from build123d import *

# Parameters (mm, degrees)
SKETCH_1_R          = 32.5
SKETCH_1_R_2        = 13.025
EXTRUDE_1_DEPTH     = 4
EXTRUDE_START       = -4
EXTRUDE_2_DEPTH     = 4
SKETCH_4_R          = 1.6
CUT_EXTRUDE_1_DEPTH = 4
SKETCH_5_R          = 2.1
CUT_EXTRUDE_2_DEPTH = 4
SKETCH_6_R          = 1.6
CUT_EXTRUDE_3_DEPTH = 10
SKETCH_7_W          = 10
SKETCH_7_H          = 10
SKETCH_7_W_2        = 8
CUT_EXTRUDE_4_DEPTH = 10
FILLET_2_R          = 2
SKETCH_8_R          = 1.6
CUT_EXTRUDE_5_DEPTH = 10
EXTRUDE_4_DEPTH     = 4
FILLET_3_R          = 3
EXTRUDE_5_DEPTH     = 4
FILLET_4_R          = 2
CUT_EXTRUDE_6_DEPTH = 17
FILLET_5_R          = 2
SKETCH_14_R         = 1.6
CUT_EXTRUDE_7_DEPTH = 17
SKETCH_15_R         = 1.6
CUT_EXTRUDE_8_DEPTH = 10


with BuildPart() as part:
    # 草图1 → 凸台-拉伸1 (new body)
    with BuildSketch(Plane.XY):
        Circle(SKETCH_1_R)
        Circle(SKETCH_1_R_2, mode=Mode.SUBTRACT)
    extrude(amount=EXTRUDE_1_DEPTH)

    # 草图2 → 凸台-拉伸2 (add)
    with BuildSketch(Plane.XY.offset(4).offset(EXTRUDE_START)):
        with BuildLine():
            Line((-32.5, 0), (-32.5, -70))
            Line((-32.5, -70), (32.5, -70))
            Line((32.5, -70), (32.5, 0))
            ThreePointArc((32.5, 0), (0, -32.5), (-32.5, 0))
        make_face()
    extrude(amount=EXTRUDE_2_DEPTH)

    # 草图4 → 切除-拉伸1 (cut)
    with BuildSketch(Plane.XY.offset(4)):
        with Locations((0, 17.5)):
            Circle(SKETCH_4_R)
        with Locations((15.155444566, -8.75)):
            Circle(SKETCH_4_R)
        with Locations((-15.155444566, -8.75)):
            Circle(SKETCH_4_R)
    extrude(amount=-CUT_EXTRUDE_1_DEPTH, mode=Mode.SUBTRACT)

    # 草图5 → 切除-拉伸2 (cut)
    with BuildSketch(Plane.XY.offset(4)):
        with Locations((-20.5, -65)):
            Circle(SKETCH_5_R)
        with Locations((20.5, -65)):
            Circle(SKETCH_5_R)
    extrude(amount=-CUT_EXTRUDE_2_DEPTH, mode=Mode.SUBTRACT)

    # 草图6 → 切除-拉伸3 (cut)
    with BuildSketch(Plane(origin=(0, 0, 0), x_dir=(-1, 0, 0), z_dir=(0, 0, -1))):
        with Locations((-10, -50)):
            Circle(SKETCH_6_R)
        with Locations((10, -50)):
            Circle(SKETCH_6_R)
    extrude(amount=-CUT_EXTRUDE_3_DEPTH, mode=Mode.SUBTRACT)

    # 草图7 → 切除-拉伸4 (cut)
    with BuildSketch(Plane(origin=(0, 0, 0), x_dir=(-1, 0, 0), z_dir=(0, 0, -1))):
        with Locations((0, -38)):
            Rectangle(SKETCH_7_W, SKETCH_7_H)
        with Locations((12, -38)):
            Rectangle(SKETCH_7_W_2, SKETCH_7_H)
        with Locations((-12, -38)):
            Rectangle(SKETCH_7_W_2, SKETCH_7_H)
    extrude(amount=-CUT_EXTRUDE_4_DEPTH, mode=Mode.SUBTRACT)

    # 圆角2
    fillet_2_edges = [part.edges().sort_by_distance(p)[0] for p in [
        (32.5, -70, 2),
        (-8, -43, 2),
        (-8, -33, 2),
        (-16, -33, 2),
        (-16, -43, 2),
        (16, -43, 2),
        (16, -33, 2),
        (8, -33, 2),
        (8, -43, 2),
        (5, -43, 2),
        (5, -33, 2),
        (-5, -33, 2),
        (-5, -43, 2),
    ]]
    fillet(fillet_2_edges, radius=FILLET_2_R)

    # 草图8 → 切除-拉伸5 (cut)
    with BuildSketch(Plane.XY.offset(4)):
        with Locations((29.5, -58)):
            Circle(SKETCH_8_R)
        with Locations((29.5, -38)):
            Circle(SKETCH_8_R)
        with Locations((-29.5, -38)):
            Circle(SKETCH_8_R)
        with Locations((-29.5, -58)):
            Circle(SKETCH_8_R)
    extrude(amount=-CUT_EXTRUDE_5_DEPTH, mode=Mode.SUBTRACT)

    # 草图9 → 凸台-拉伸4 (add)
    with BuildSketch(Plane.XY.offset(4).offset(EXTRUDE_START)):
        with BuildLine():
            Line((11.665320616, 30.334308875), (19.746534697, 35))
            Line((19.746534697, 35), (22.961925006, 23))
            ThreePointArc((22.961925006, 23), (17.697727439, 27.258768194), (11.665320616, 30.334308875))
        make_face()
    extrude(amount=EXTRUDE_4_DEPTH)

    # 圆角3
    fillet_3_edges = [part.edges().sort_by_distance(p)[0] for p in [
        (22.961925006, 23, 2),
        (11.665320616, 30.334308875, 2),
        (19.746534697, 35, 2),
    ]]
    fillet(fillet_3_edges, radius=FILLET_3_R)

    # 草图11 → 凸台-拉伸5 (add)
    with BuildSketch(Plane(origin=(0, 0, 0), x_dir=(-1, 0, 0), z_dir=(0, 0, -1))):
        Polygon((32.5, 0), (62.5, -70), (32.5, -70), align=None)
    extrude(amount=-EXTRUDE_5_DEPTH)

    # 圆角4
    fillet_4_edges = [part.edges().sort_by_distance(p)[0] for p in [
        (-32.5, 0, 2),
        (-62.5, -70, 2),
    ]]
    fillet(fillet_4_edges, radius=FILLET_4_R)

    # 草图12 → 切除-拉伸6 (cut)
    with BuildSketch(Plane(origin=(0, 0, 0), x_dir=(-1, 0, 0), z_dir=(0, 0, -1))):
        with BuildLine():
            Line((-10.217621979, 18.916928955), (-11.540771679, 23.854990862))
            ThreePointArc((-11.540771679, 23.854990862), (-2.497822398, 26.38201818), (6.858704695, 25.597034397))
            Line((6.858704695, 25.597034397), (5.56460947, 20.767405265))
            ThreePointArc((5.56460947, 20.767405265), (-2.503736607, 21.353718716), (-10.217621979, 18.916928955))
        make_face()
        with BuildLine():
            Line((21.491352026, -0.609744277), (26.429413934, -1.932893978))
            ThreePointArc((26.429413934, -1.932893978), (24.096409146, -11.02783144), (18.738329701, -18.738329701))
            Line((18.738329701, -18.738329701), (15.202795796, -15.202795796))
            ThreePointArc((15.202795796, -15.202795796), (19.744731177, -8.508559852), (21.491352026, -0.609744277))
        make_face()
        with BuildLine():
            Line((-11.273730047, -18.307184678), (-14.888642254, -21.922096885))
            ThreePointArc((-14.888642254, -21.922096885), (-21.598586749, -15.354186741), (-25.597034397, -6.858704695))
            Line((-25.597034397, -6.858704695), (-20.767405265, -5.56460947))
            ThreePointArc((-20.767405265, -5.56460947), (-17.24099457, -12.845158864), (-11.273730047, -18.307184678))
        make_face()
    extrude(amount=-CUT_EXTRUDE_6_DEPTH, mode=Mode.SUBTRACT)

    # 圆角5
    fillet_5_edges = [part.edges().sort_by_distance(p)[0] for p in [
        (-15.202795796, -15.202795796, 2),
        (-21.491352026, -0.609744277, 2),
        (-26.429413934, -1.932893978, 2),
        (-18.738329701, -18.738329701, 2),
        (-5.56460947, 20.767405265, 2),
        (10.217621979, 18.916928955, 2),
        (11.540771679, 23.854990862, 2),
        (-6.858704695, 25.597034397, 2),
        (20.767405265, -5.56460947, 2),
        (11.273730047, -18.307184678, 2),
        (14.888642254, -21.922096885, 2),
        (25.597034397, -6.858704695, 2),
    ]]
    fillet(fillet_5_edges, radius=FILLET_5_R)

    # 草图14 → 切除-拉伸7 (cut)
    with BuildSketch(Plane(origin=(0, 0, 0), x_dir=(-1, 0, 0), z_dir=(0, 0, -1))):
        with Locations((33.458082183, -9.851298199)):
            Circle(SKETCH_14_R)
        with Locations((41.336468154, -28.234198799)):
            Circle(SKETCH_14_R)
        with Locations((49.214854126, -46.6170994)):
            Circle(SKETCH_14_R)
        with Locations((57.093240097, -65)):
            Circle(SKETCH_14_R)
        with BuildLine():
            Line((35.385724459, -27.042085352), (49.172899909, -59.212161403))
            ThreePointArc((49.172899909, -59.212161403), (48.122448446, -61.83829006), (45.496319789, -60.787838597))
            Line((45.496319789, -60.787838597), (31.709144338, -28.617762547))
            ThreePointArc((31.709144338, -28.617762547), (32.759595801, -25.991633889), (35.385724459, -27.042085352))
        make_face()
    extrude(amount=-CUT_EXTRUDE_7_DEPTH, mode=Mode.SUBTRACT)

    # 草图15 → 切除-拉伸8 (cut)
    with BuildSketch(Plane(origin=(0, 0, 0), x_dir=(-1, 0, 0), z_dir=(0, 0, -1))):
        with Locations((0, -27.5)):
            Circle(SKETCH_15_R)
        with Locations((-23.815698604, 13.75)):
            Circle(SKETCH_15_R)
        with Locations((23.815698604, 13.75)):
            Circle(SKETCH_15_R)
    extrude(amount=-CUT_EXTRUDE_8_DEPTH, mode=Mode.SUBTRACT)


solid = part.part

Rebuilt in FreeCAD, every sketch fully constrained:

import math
import FreeCAD as App
import Part
import Sketcher
Q = App.Units.Quantity


def edges_at(feature, points):
    """Names of the edges that pass closest to the given points."""
    edges = feature.Shape.Edges
    near = lambda p: min(range(len(edges)), key=lambda i: edges[i].distToShape(Part.Vertex(*p))[0])
    return sorted({f"Edge{near(p) + 1}" for p in points})


def add_polygon(sketch, points):
    """Adds a closed chain of lines whose ends are joined by coincident constraints."""
    first, n = sketch.GeometryCount, len(points)
    for a, b in zip(points, points[1:] + points[:1]):
        sketch.addGeometry(Part.LineSegment(App.Vector(*a, 0), App.Vector(*b, 0)), False)
    for i in range(n):
        sketch.addConstraint(Sketcher.Constraint("Coincident", first + i, 2, first + (i + 1) % n, 1))

doc = App.newDocument("Part")
body = doc.addObject("PartDesign::Body", "Body")

# Sketch on XY plane
sketch1 = body.newObject("Sketcher::SketchObject", "Sketch")
sketch1.AttachmentSupport = (doc.getObject("XY_Plane"), [""])
sketch1.MapMode = "FlatFace"
sketch1.addGeometry([
    Part.Circle(App.Vector(0, 0, 0), App.Vector(0, 0, 1), 32),
    Part.Circle(App.Vector(0, 0, 0), App.Vector(0, 0, 1), 13),
], False)
sketch1.addConstraint([
    Sketcher.Constraint("Coincident", 0, 3, -1, 1),
    Sketcher.Constraint("Coincident", 1, 3, -1, 1),
    Sketcher.Constraint("Diameter", 0, Q("65 mm")),
    Sketcher.Constraint("Diameter", 1, Q("26.05 mm")),
])
pad1 = body.newObject("PartDesign::Pad", "Pad")
pad1.Profile = sketch1
pad1.Length = 4

# Sketch on XY plane
sketch2 = body.newObject("Sketcher::SketchObject", "Sketch001")
sketch2.AttachmentSupport = (doc.getObject("XY_Plane"), [""])
sketch2.MapMode = "FlatFace"
sketch2.addGeometry([
    Part.LineSegment(App.Vector(-32, 0, 0), App.Vector(-32, -70, 0)),
    Part.LineSegment(App.Vector(-32, -70, 0), App.Vector(32, -70, 0)),
    Part.LineSegment(App.Vector(32, -70, 0), App.Vector(32, 0, 0)),
    Part.ArcOfCircle(Part.Circle(App.Vector(0, 0, 0), App.Vector(0, 0, 1), 32), math.radians(180), math.radians(360)),
], False)
sketch2.addConstraint([
    Sketcher.Constraint("Coincident", 0, 2, 1, 1),
    Sketcher.Constraint("Coincident", 1, 2, 2, 1),
    Sketcher.Constraint("Tangent", 2, 2, 3, 2),
    Sketcher.Constraint("Tangent", 3, 1, 0, 1),
    Sketcher.Constraint("Vertical", 0),
    Sketcher.Constraint("Horizontal", 1),
    Sketcher.Constraint("Vertical", 2),
    Sketcher.Constraint("Coincident", 3, 3, -1, 1),
    Sketcher.Constraint("Radius", 3, Q("32.5 mm")),
    Sketcher.Constraint("DistanceY", 0, 2, 0, 1, Q("70 mm")),
])
pad2 = body.newObject("PartDesign::Pad", "Pad001")
pad2.Profile = sketch2
pad2.Length = 4

# Sketch on XY plane
sketch3 = body.newObject("Sketcher::SketchObject", "Sketch002")
sketch3.AttachmentSupport = (doc.getObject("XY_Plane"), [""])
sketch3.MapMode = "FlatFace"
sketch3.AttachmentOffset = App.Placement(App.Vector(0, 0, 4), App.Rotation())
sketch3.addGeometry([
    Part.Circle(App.Vector(0, 17.5, 0), App.Vector(0, 0, 1), 1.6),
    Part.Circle(App.Vector(15.2, -8.8, 0), App.Vector(0, 0, 1), 1.6),
    Part.Circle(App.Vector(-15.2, -8.8, 0), App.Vector(0, 0, 1), 1.6),
], False)
sketch3.addConstraint([
    Sketcher.Constraint("Equal", 0, 1),
    Sketcher.Constraint("Equal", 1, 2),
    Sketcher.Constraint("Symmetric", 1, 3, 2, 3, -2),
    Sketcher.Constraint("PointOnObject", 0, 3, -2),
    Sketcher.Constraint("Diameter", 0, Q("3.2 mm")),
    Sketcher.Constraint("DistanceY", -1, 1, 0, 3, Q("17.5 mm")),
    Sketcher.Constraint("DistanceY", 1, 3, -1, 1, Q("8.75 mm")),
    Sketcher.Constraint("DistanceX", 2, 3, 1, 3, Q("30.310889 mm")),
])
pocket1 = body.newObject("PartDesign::Pocket", "Pocket")
pocket1.Profile = sketch3
pocket1.Length = 4

# Sketch on XY plane
sketch4 = body.newObject("Sketcher::SketchObject", "Sketch003")
sketch4.AttachmentSupport = (doc.getObject("XY_Plane"), [""])
sketch4.MapMode = "FlatFace"
sketch4.AttachmentOffset = App.Placement(App.Vector(0, 0, 4), App.Rotation())
sketch4.addGeometry([
    Part.Circle(App.Vector(-20.5, -65, 0), App.Vector(0, 0, 1), 2.1),
    Part.Circle(App.Vector(20.5, -65, 0), App.Vector(0, 0, 1), 2.1),
], False)
sketch4.addConstraint([
    Sketcher.Constraint("Equal", 0, 1),
    Sketcher.Constraint("Symmetric", 0, 3, 1, 3, -2),
    Sketcher.Constraint("Diameter", 0, Q("4.2 mm")),
    Sketcher.Constraint("DistanceY", 0, 3, -1, 1, Q("65 mm")),
    Sketcher.Constraint("DistanceX", 0, 3, 1, 3, Q("41 mm")),
])
pocket2 = body.newObject("PartDesign::Pocket", "Pocket001")
pocket2.Profile = sketch4
pocket2.Length = 4

# Sketch on XY plane
sketch5 = body.newObject("Sketcher::SketchObject", "Sketch004")
sketch5.AttachmentSupport = (doc.getObject("XY_Plane"), [""])
sketch5.MapMode = "FlatFace"
sketch5.addGeometry([
    Part.Circle(App.Vector(10, -50, 0), App.Vector(0, 0, 1), 1.6),
    Part.Circle(App.Vector(-10, -50, 0), App.Vector(0, 0, 1), 1.6),
], False)
sketch5.addConstraint([
    Sketcher.Constraint("Equal", 0, 1),
    Sketcher.Constraint("Symmetric", 0, 3, 1, 3, -2),
    Sketcher.Constraint("Diameter", 0, Q("3.2 mm")),
    Sketcher.Constraint("DistanceX", -1, 1, 0, 3, Q("10 mm")),
    Sketcher.Constraint("DistanceY", 0, 3, -1, 1, Q("50 mm")),
])
pocket3 = body.newObject("PartDesign::Pocket", "Pocket002")
pocket3.Profile = sketch5
pocket3.Length = 10
pocket3.Reversed = True

# Sketch on XY plane
sketch6 = body.newObject("Sketcher::SketchObject", "Sketch005")
sketch6.AttachmentSupport = (doc.getObject("XY_Plane"), [""])
sketch6.MapMode = "FlatFace"
add_polygon(sketch6, [(5, -33), (5, -43), (-5, -43), (-5, -33)])  # lines 0-3
add_polygon(sketch6, [(-8, -33), (-8, -43), (-16, -43), (-16, -33)])  # lines 4-7
add_polygon(sketch6, [(16, -33), (16, -43), (8, -43), (8, -33)])  # lines 8-11
sketch6.addConstraint([
    Sketcher.Constraint("Vertical", 0),
    Sketcher.Constraint("Horizontal", 1),
    Sketcher.Constraint("Vertical", 2),
    Sketcher.Constraint("Horizontal", 3),
    Sketcher.Constraint("Vertical", 4),
    Sketcher.Constraint("Horizontal", 5),
    Sketcher.Constraint("Vertical", 6),
    Sketcher.Constraint("Horizontal", 7),
    Sketcher.Constraint("Vertical", 8),
    Sketcher.Constraint("Horizontal", 9),
    Sketcher.Constraint("Vertical", 10),
    Sketcher.Constraint("Horizontal", 11),
    Sketcher.Constraint("Symmetric", 5, 2, 8, 2, -2),
    Sketcher.Constraint("Symmetric", 7, 2, 10, 2, -2),
    Sketcher.Constraint("Horizontal", 1, 2, 4, 2),
    Sketcher.Constraint("Horizontal", 3, 2, 6, 2),
    Sketcher.Constraint("Equal", 3, 0),
    Sketcher.Constraint("DistanceX", 1, 2, 1, 1, Q("10 mm")),
    Sketcher.Constraint("DistanceX", 5, 2, 5, 1, Q("8 mm")),
    Sketcher.Constraint("DistanceX", -1, 1, 0, 2, Q("5 mm")),
    Sketcher.Constraint("DistanceY", 0, 2, -1, 1, Q("43 mm")),
    Sketcher.Constraint("DistanceX", 4, 2, -1, 1, Q("8 mm")),
])
pocket4 = body.newObject("PartDesign::Pocket", "Pocket003")
pocket4.Profile = sketch6
pocket4.Length = 10
pocket4.Reversed = True
doc.recompute()

fillet = body.newObject("PartDesign::Fillet", "Fillet")
fillet.Base = (pocket4, edges_at(pocket4, [
    (32.5, -70, 2),
    (-8, -43, 2),
    (-8, -33, 2),
    (-16, -33, 2),
    (-16, -43, 2),
    (16, -43, 2),
    (16, -33, 2),
    (8, -33, 2),
    (8, -43, 2),
    (5, -43, 2),
    (5, -33, 2),
    (-5, -33, 2),
    (-5, -43, 2),
]))
fillet.Radius = 2

# Sketch on XY plane
sketch7 = body.newObject("Sketcher::SketchObject", "Sketch006")
sketch7.AttachmentSupport = (doc.getObject("XY_Plane"), [""])
sketch7.MapMode = "FlatFace"
sketch7.AttachmentOffset = App.Placement(App.Vector(0, 0, 4), App.Rotation())
sketch7.addGeometry([
    Part.Circle(App.Vector(29.5, -58, 0), App.Vector(0, 0, 1), 1.6),
    Part.Circle(App.Vector(29.5, -38, 0), App.Vector(0, 0, 1), 1.6),
    Part.Circle(App.Vector(-29.5, -38, 0), App.Vector(0, 0, 1), 1.6),
    Part.Circle(App.Vector(-29.5, -58, 0), App.Vector(0, 0, 1), 1.6),
], False)
sketch7.addConstraint([
    Sketcher.Constraint("Equal", 0, 1),
    Sketcher.Constraint("Equal", 1, 2),
    Sketcher.Constraint("Equal", 2, 3),
    Sketcher.Constraint("Symmetric", 1, 3, 2, 3, -2),
    Sketcher.Constraint("Symmetric", 0, 3, 3, 3, -2),
    Sketcher.Constraint("Vertical", 0, 3, 1, 3),
    Sketcher.Constraint("Diameter", 0, Q("3.2 mm")),
    Sketcher.Constraint("DistanceY", 0, 3, -1, 1, Q("58 mm")),
    Sketcher.Constraint("DistanceY", 1, 3, -1, 1, Q("38 mm")),
    Sketcher.Constraint("DistanceX", 2, 3, 1, 3, Q("59 mm")),
])
pocket5 = body.newObject("PartDesign::Pocket", "Pocket004")
pocket5.Profile = sketch7
pocket5.Length = 10

# Sketch on XY plane
sketch8 = body.newObject("Sketcher::SketchObject", "Sketch007")
sketch8.AttachmentSupport = (doc.getObject("XY_Plane"), [""])
sketch8.MapMode = "FlatFace"
sketch8.addGeometry([
    Part.LineSegment(App.Vector(20, 35, 0), App.Vector(12, 30, 0)),
    Part.ArcOfCircle(Part.Circle(App.Vector(0, 0, 0), App.Vector(0, 0, 1), 33), math.radians(45), math.radians(69)),
    Part.LineSegment(App.Vector(23, 23, 0), App.Vector(20, 35, 0)),
], False)
sketch8.addConstraint([
    Sketcher.Constraint("Coincident", 0, 2, 1, 2),
    Sketcher.Constraint("Coincident", 1, 1, 2, 1),
    Sketcher.Constraint("Coincident", 2, 2, 0, 1),
    Sketcher.Constraint("Coincident", 1, 3, -1, 1),
    Sketcher.Constraint("Radius", 1, Q("32.5 mm")),
    Sketcher.Constraint("Angle", 0, Q("-150 deg")),
    Sketcher.Constraint("Angle", 2, Q("105 deg")),
    Sketcher.Constraint("DistanceY", -1, 1, 1, 1, Q("23 mm")),
    Sketcher.Constraint("DistanceY", -1, 1, 2, 2, Q("35 mm")),
])
pad3 = body.newObject("PartDesign::Pad", "Pad002")
pad3.Profile = sketch8
pad3.Length = 4
doc.recompute()

fillet2 = body.newObject("PartDesign::Fillet", "Fillet001")
fillet2.Base = (pad3, edges_at(pad3, [(22.962, 23, 2), (11.665, 30.334, 2), (19.747, 35, 2)]))
fillet2.Radius = 3

# Sketch on XY plane
sketch9 = body.newObject("Sketcher::SketchObject", "Sketch008")
sketch9.AttachmentSupport = (doc.getObject("XY_Plane"), [""])
sketch9.MapMode = "FlatFace"
add_polygon(sketch9, [(-62, -70), (-32, 0), (-32, -70)])  # lines 0-2
sketch9.addConstraint([
    Sketcher.Constraint("Vertical", 1),
    Sketcher.Constraint("Horizontal", 2),
    Sketcher.Constraint("PointOnObject", 0, 2, -1),
    Sketcher.Constraint("DistanceX", 2, 2, 2, 1, Q("30 mm")),
    Sketcher.Constraint("DistanceY", 1, 2, 1, 1, Q("70 mm")),
    Sketcher.Constraint("DistanceX", 0, 2, -1, 1, Q("32.5 mm")),
])
pad4 = body.newObject("PartDesign::Pad", "Pad003")
pad4.Profile = sketch9
pad4.Length = 4
doc.recompute()

fillet3 = body.newObject("PartDesign::Fillet", "Fillet002")
fillet3.Base = (pad4, edges_at(pad4, [(-32.5, 0, 2), (-62.5, -70, 2)]))
fillet3.Radius = 2

# Sketch on XY plane
sketch10 = body.newObject("Sketcher::SketchObject", "Sketch009")
sketch10.AttachmentSupport = (doc.getObject("XY_Plane"), [""])
sketch10.MapMode = "FlatFace"
sketch10.addGeometry([
    Part.LineSegment(App.Vector(11.5, 23.9, 0), App.Vector(10.2, 18.9, 0)),  # 0
    Part.ArcOfCircle(Part.Circle(App.Vector(0, 0, 0), App.Vector(0, 0, 1), 21.5), math.radians(62), math.radians(105)),  # 1
    Part.LineSegment(App.Vector(-5.6, 20.8, 0), App.Vector(-6.9, 25.6, 0)),  # 2
    Part.ArcOfCircle(Part.Circle(App.Vector(0, 0, 0), App.Vector(0, 0, 1), 26.5), math.radians(64), math.radians(105)),  # 3
    Part.LineSegment(App.Vector(-26.4, -1.9, 0), App.Vector(-21.5, -0.6, 0)),  # 4
    Part.ArcOfCircle(Part.Circle(App.Vector(0, 0, 0), App.Vector(0, 0, 1), 21.5), math.radians(-178), math.radians(-135)),  # 5
    Part.LineSegment(App.Vector(-15.2, -15.2, 0), App.Vector(-18.7, -18.7, 0)),  # 6
    Part.ArcOfCircle(Part.Circle(App.Vector(0, 0, 0), App.Vector(0, 0, 1), 26.5), math.radians(-176), math.radians(-135)),  # 7
    Part.LineSegment(App.Vector(14.9, -21.9, 0), App.Vector(11.3, -18.3, 0)),  # 8
    Part.ArcOfCircle(Part.Circle(App.Vector(0, 0, 0), App.Vector(0, 0, 1), 21.5), math.radians(-58), math.radians(-15)),  # 9
    Part.LineSegment(App.Vector(20.8, -5.6, 0), App.Vector(25.6, -6.9, 0)),  # 10
    Part.ArcOfCircle(Part.Circle(App.Vector(0, 0, 0), App.Vector(0, 0, 1), 26.5), math.radians(-56), math.radians(-15)),  # 11
], False)
sketch10.addConstraint([
    Sketcher.Constraint("Coincident", 0, 2, 1, 1),
    Sketcher.Constraint("Coincident", 1, 2, 2, 1),
    Sketcher.Constraint("Coincident", 2, 2, 3, 2),
    Sketcher.Constraint("Coincident", 3, 1, 0, 1),
    Sketcher.Constraint("Coincident", 4, 2, 5, 1),
    Sketcher.Constraint("Coincident", 5, 2, 6, 1),
    Sketcher.Constraint("Coincident", 6, 2, 7, 2),
    Sketcher.Constraint("Coincident", 7, 1, 4, 1),
    Sketcher.Constraint("Coincident", 8, 2, 9, 1),
    Sketcher.Constraint("Coincident", 9, 2, 10, 1),
    Sketcher.Constraint("Coincident", 10, 2, 11, 2),
    Sketcher.Constraint("Coincident", 11, 1, 8, 1),
    Sketcher.Constraint("Coincident", 1, 3, -1, 1),
    Sketcher.Constraint("Coincident", 3, 3, -1, 1),
    Sketcher.Constraint("Coincident", 5, 3, -1, 1),
    Sketcher.Constraint("Coincident", 7, 3, -1, 1),
    Sketcher.Constraint("Coincident", 9, 3, -1, 1),
    Sketcher.Constraint("Coincident", 11, 3, -1, 1),
    Sketcher.Constraint("Equal", 1, 5),
    Sketcher.Constraint("Equal", 3, 7),
    Sketcher.Constraint("Equal", 5, 9),
    Sketcher.Constraint("Equal", 7, 11),
    Sketcher.Constraint("Perpendicular", 2, 4),
    Sketcher.Constraint("Perpendicular", 6, 8),
    Sketcher.Constraint("Perpendicular", 0, 10),
    Sketcher.Constraint("Equal", 0, 4),
    Sketcher.Constraint("Equal", 4, 8),
    Sketcher.Constraint("Radius", 1, Q("21.5 mm")),
    Sketcher.Constraint("Radius", 3, Q("26.5 mm")),
    Sketcher.Constraint("Angle", 0, Q("-105 deg")),
    Sketcher.Constraint("Angle", 2, Q("105 deg")),
    Sketcher.Constraint("Angle", 6, Q("-135 deg")),
    Sketcher.Constraint("DistanceY", 5, 2, 7, 1, Q("13.269902 mm")),
    Sketcher.Constraint("DistanceX", -1, 1, 0, 2, Q("10.217622 mm")),
    Sketcher.Constraint("DistanceX", 1, 2, -1, 1, Q("5.564609 mm")),
    Sketcher.Constraint("DistanceY", 9, 2, -1, 1, Q("5.564609 mm")),
])
pocket6 = body.newObject("PartDesign::Pocket", "Pocket005")
pocket6.Profile = sketch10
pocket6.Length = 17
pocket6.Reversed = True
doc.recompute()

fillet4 = body.newObject("PartDesign::Fillet", "Fillet003")
fillet4.Base = (pocket6, edges_at(pocket6, [
    (-15.203, -15.203, 2),
    (-21.491, -0.61, 2),
    (-26.429, -1.933, 2),
    (-18.738, -18.738, 2),
    (-5.565, 20.767, 2),
    (10.218, 18.917, 2),
    (11.541, 23.855, 2),
    (-6.859, 25.597, 2),
    (20.767, -5.565, 2),
    (11.274, -18.307, 2),
    (14.889, -21.922, 2),
    (25.597, -6.859, 2),
]))
fillet4.Radius = 2

# Sketch on XY plane
sketch11 = body.newObject("Sketcher::SketchObject", "Sketch010")
sketch11.AttachmentSupport = (doc.getObject("XY_Plane"), [""])
sketch11.MapMode = "FlatFace"
sketch11.addGeometry([
    Part.Circle(App.Vector(-33.5, -9.9, 0), App.Vector(0, 0, 1), 1.6),  # 0
    Part.Circle(App.Vector(-41.3, -28.2, 0), App.Vector(0, 0, 1), 1.6),  # 1
    Part.Circle(App.Vector(-49.2, -46.6, 0), App.Vector(0, 0, 1), 1.6),  # 2
    Part.Circle(App.Vector(-57.1, -65, 0), App.Vector(0, 0, 1), 1.6),  # 3
    Part.LineSegment(App.Vector(-49.2, -59.2, 0), App.Vector(-35.4, -27, 0)),  # 4
    Part.ArcOfCircle(Part.Circle(App.Vector(-33.5, -27.8, 0), App.Vector(0, 0, 1), 2), math.radians(-23), math.radians(157)),  # 5
    Part.LineSegment(App.Vector(-31.7, -28.6, 0), App.Vector(-45.5, -60.8, 0)),  # 6
    Part.ArcOfCircle(Part.Circle(App.Vector(-47.3, -60, 0), App.Vector(0, 0, 1), 2), math.radians(157), math.radians(337)),  # 7
], False)
sketch11.addConstraint([
    Sketcher.Constraint("Tangent", 4, 2, 5, 2),
    Sketcher.Constraint("Tangent", 5, 1, 6, 1),
    Sketcher.Constraint("Tangent", 6, 2, 7, 2),
    Sketcher.Constraint("Tangent", 7, 1, 4, 1),
    Sketcher.Constraint("Equal", 0, 1),
    Sketcher.Constraint("Equal", 1, 2),
    Sketcher.Constraint("Equal", 2, 3),
    Sketcher.Constraint("Equal", 5, 7),
    Sketcher.Constraint("Radius", 5, Q("2 mm")),
    Sketcher.Constraint("Diameter", 0, Q("3.2 mm")),
    Sketcher.Constraint("Distance", 4, Q("35 mm")),
    Sketcher.Constraint("DistanceY", 3, 3, -1, 1, Q("65 mm")),
    Sketcher.Constraint("DistanceY", 7, 3, -1, 1, Q("60 mm")),
    Sketcher.Constraint("DistanceY", 0, 3, -1, 1, Q("9.851298 mm")),
    Sketcher.Constraint("DistanceY", 1, 3, -1, 1, Q("28.234199 mm")),
    Sketcher.Constraint("DistanceY", 2, 3, -1, 1, Q("46.617099 mm")),
    Sketcher.Constraint("DistanceX", 7, 1, -1, 1, Q("49.1729 mm")),
    Sketcher.Constraint("DistanceX", 1, 3, -1, 1, Q("41.336468 mm")),
    Sketcher.Constraint("DistanceX", 3, 3, -1, 1, Q("57.09324 mm")),
    Sketcher.Constraint("DistanceX", 7, 3, -1, 1, Q("47.33461 mm")),
    Sketcher.Constraint("DistanceX", 2, 3, 0, 3, Q("15.756772 mm")),
    Sketcher.Constraint("DistanceX", 2, 3, 5, 3, Q("15.66742 mm")),
])
pocket7 = body.newObject("PartDesign::Pocket", "Pocket006")
pocket7.Profile = sketch11
pocket7.Length = 17
pocket7.Reversed = True

# Sketch on XY plane
sketch12 = body.newObject("Sketcher::SketchObject", "Sketch011")
sketch12.AttachmentSupport = (doc.getObject("XY_Plane"), [""])
sketch12.MapMode = "FlatFace"
sketch12.addGeometry([
    Part.Circle(App.Vector(0, -27.5, 0), App.Vector(0, 0, 1), 1.6),
    Part.Circle(App.Vector(23.8, 13.8, 0), App.Vector(0, 0, 1), 1.6),
    Part.Circle(App.Vector(-23.8, 13.8, 0), App.Vector(0, 0, 1), 1.6),
], False)
sketch12.addConstraint([
    Sketcher.Constraint("Equal", 0, 1),
    Sketcher.Constraint("Equal", 1, 2),
    Sketcher.Constraint("Symmetric", 1, 3, 2, 3, -2),
    Sketcher.Constraint("PointOnObject", 0, 3, -2),
    Sketcher.Constraint("Diameter", 0, Q("3.2 mm")),
    Sketcher.Constraint("DistanceY", 0, 3, -1, 1, Q("27.5 mm")),
    Sketcher.Constraint("DistanceY", -1, 1, 1, 3, Q("13.75 mm")),
    Sketcher.Constraint("DistanceX", -1, 1, 1, 3, Q("23.815699 mm")),
])
pocket8 = body.newObject("PartDesign::Pocket", "Pocket007")
pocket8.Profile = sketch12
pocket8.Length = 10
pocket8.Reversed = True

doc.recompute()
